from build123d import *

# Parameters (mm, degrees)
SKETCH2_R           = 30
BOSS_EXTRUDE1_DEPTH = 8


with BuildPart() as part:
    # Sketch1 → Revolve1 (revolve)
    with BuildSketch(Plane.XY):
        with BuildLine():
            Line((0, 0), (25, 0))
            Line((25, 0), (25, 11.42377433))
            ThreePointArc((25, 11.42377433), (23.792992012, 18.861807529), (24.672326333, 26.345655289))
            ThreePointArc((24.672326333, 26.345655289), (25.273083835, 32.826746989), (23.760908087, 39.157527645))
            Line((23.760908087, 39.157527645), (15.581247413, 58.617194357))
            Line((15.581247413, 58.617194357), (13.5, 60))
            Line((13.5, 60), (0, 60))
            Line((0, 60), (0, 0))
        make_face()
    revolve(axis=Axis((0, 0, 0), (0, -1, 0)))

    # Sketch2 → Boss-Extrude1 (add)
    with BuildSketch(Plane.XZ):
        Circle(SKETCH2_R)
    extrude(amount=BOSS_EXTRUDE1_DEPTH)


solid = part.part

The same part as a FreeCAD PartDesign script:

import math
import FreeCAD as App
import Part
import Sketcher
from FreeCAD import Vector
Q = App.Units.Quantity

doc = App.newDocument("Part")
body = doc.addObject("PartDesign::Body", "Body")

sketch1 = doc.addObject("Sketcher::SketchObject", "Sketch")
body.addObject(sketch1)
sketch1.AttachmentSupport = (doc.XY_Plane, [""])
sketch1.MapMode = "FlatFace"
sketch1.addGeometry(Part.LineSegment(Vector(0, 0, 0), Vector(25, 0, 0)), False)
sketch1.addGeometry(Part.LineSegment(Vector(25, 0, 0), Vector(25, 11.4, 0)), False)
sketch1.addGeometry(Part.ArcOfCircle(Part.Circle(Vector(51, 19.5, 0), Vector(0, 0, 1), 27.2), math.radians(165), math.radians(197)), False)
sketch1.addGeometry(Part.ArcOfCircle(Part.Circle(Vector(5.3, 31.4, 0), Vector(0, 0, 1), 20), math.radians(-15), math.radians(23)), False)
sketch1.addGeometry(Part.LineSegment(Vector(23.8, 39.2, 0), Vector(15.6, 58.6, 0)), False)
sketch1.addGeometry(Part.LineSegment(Vector(15.6, 58.6, 0), Vector(13.5, 60, 0)), False)
sketch1.addGeometry(Part.LineSegment(Vector(13.5, 60, 0), Vector(0, 60, 0)), False)
sketch1.addGeometry(Part.LineSegment(Vector(0, 60, 0), Vector(0, 0, 0)), False)
sketch1.addConstraint(Sketcher.Constraint("Coincident", 0, 2, 1, 1))
sketch1.addConstraint(Sketcher.Constraint("Coincident", 1, 2, 2, 2))
sketch1.addConstraint(Sketcher.Constraint("Tangent", 2, 1, 3, 1))
sketch1.addConstraint(Sketcher.Constraint("Tangent", 3, 2, 4, 1))
sketch1.addConstraint(Sketcher.Constraint("Coincident", 4, 2, 5, 1))
sketch1.addConstraint(Sketcher.Constraint("Coincident", 5, 2, 6, 1))
sketch1.addConstraint(Sketcher.Constraint("Coincident", 6, 2, 7, 1))
sketch1.addConstraint(Sketcher.Constraint("Coincident", 7, 2, 0, 1))
sketch1.addConstraint(Sketcher.Constraint("Horizontal", 0))
sketch1.addConstraint(Sketcher.Constraint("Vertical", 1))
sketch1.addConstraint(Sketcher.Constraint("Horizontal", 6))
sketch1.addConstraint(Sketcher.Constraint("Vertical", 7))
sketch1.addConstraint(Sketcher.Constraint("Coincident", 7, 2, -1, 1))
sketch1.addConstraint(Sketcher.Constraint("Radius", 3, Q("20 mm")))
sketch1.addConstraint(Sketcher.Constraint("DistanceX", 0, 1, 0, 2, Q("25 mm")))
sketch1.addConstraint(Sketcher.Constraint("DistanceY", 7, 2, 7, 1, Q("60 mm")))
sketch1.addConstraint(Sketcher.Constraint("DistanceX", 6, 2, 6, 1, Q("13.5 mm")))
sketch1.addConstraint(Sketcher.Constraint("Radius", 2, Q("27.209112 mm")))
sketch1.addConstraint(Sketcher.Constraint("DistanceX", -1, 1, 3, 3, Q("5.3235 mm")))
sketch1.addConstraint(Sketcher.Constraint("DistanceY", 2, 3, 2, 1, Q("6.886499 mm")))
sketch1.addConstraint(Sketcher.Constraint("DistanceX", 4, 2, 2, 3, Q("35.414298 mm")))
sketch1.addConstraint(Sketcher.Constraint("Distance", 5, Q("2.498748 mm")))
sketch1.addConstraint(Sketcher.Constraint("DistanceY", 1, 1, 1, 2, Q("11.423774 mm")))
revolution = doc.addObject("PartDesign::Revolution", "Revolution")
body.addObject(revolution)
revolution.Profile = sketch1
revolution.ReferenceAxis = (sketch1, ["V_Axis"])
revolution.Angle = 360

sketch2 = doc.addObject("Sketcher::SketchObject", "Sketch001")
body.addObject(sketch2)
sketch2.AttachmentSupport = (doc.XZ_Plane, [""])
sketch2.MapMode = "FlatFace"
sketch2.addGeometry(Part.Circle(Vector(0, 0, 0), Vector(0, 0, 1), 30), False)
sketch2.addConstraint(Sketcher.Constraint("Coincident", 0, 3, -1, 1))
sketch2.addConstraint(Sketcher.Constraint("Diameter", 0, Q("60 mm")))
pad1 = doc.addObject("PartDesign::Pad", "Pad")
body.addObject(pad1)
pad1.Profile = sketch2
pad1.Length = 8

doc.recompute()
